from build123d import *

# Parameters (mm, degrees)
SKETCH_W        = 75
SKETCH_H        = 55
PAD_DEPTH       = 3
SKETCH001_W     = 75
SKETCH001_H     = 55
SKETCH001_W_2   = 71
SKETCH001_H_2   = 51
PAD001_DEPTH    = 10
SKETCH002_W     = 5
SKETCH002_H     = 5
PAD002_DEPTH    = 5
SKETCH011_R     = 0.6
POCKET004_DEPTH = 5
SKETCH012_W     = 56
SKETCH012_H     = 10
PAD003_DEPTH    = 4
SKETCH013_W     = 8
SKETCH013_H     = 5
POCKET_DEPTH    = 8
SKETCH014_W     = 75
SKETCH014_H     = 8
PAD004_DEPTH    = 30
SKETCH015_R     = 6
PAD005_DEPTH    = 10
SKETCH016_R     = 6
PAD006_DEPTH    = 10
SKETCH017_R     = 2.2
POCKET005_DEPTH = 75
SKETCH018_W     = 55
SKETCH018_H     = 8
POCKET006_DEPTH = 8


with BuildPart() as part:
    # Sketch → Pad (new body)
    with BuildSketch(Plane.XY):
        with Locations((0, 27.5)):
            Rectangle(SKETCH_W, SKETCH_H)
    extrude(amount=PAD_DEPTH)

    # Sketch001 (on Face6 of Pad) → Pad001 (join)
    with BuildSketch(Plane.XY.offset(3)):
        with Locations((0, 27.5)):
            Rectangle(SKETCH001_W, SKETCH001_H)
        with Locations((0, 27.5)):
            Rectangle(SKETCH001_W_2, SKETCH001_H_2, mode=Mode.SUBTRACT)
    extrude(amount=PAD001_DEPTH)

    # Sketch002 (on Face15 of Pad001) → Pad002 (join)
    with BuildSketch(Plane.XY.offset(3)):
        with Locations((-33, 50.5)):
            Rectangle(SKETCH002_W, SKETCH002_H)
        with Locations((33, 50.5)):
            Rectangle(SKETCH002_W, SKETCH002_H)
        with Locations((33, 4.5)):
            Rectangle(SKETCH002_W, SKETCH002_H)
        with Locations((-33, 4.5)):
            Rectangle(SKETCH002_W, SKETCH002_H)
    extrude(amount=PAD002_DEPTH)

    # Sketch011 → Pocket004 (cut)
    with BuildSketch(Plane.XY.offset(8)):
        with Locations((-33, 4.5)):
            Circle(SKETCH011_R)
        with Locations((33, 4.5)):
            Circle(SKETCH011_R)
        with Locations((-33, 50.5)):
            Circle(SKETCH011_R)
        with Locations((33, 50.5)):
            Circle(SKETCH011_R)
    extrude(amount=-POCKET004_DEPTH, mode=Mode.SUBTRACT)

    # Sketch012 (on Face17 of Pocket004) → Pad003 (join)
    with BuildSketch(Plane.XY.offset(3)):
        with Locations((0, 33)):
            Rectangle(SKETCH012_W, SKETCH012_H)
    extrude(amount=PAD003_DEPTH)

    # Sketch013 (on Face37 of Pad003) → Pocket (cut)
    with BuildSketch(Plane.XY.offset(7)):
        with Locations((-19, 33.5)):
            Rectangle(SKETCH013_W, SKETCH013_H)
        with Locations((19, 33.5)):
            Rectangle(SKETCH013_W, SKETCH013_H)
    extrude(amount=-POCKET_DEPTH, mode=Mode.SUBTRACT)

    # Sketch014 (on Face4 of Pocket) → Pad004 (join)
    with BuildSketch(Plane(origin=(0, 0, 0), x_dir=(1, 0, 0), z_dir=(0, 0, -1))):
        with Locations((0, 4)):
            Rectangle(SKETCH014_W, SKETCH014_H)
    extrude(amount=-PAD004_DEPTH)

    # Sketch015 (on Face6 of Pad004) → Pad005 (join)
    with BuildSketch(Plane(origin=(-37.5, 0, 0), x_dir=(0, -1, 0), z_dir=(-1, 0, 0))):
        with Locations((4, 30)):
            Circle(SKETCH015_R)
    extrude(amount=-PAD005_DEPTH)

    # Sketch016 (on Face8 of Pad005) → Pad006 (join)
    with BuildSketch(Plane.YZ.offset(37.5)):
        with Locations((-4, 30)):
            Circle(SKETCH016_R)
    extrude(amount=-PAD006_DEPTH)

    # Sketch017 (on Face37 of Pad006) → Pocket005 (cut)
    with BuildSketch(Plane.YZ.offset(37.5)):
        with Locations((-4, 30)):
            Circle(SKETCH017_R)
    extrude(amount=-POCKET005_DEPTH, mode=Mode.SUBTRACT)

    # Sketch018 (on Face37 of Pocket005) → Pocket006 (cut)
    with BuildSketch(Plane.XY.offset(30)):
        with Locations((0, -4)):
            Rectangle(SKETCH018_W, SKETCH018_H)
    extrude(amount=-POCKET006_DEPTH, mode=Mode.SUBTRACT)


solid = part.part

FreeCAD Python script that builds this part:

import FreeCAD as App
import Part
import Sketcher

doc = App.newDocument("Part")
params = doc.addObject("Spreadsheet::Sheet", "Params")
for row, (alias, value) in enumerate([
    ("sketch1_width", "75 mm"),
    ("sketch1_height", "55 mm"),
    ("pad1_length", "3 mm"),
    ("sketch2_width", "75 mm"),
    ("sketch2_width2", "71 mm"),
    ("sketch2_height", "55 mm"),
    ("sketch2_height2", "51 mm"),
    ("pad2_length", "10 mm"),
    ("sketch3_width", "5 mm"),
    ("pad3_length", "5 mm"),
    ("sketch4_diameter", "1.2 mm"),
    ("pocket1_length", "5 mm"),
    ("sketch5_width", "56 mm"),
    ("sketch5_height", "10 mm"),
    ("pad4_length", "4 mm"),
    ("sketch6_width", "8 mm"),
    ("sketch6_height", "5 mm"),
    ("pocket2_length", "8 mm"),
    ("sketch7_width", "75 mm"),
    ("sketch7_height", "8 mm"),
    ("pad5_length", "30 mm"),
    ("sketch8_diameter", "12 mm"),
    ("pad6_length", "10 mm"),
    ("sketch9_diameter", "12 mm"),
    ("pad7_length", "10 mm"),
    ("sketch10_diameter", "4.4 mm"),
    ("pocket3_length", "75 mm"),
    ("sketch11_width", "55 mm"),
    ("sketch11_height", "8 mm"),
    ("pocket4_length", "8 mm"),
], start=1):
    params.set(f"A{row}", alias)
    params.set(f"B{row}", "=" + value)
    params.setAlias(f"B{row}", alias)

body = doc.addObject("PartDesign::Body", "Body")

sketch1 = body.newObject("Sketcher::SketchObject", "Sketch")
sketch1.AttachmentSupport = (doc.getObject("XY_Plane"), [""])
sketch1.MapMode = "FlatFace"
sketch1.addGeometry([
    Part.LineSegment(App.Vector(-38, 55, 0), App.Vector(-38, 0, 0)),
    Part.LineSegment(App.Vector(-38, 0, 0), App.Vector(38, 0, 0)),
    Part.LineSegment(App.Vector(38, 0, 0), App.Vector(38, 55, 0)),
    Part.LineSegment(App.Vector(38, 55, 0), App.Vector(-38, 55, 0)),
], False)
sketch1.addConstraint([
    Sketcher.Constraint("Coincident", 0, 2, 1, 1),
    Sketcher.Constraint("Coincident", 1, 2, 2, 1),
    Sketcher.Constraint("Coincident", 2, 2, 3, 1),
    Sketcher.Constraint("Coincident", 3, 2, 0, 1),
    Sketcher.Constraint("Vertical", 0),
    Sketcher.Constraint("Horizontal", 1),
    Sketcher.Constraint("Vertical", 2),
    Sketcher.Constraint("Horizontal", 3),
    Sketcher.Constraint("Symmetric", 0, 2, 1, 2, -1, 1),
    Sketcher.Constraint("DistanceX", 1, 1, 1, 2, 75.0),
    Sketcher.Constraint("DistanceY", 0, 2, 0, 1, 55.0),
])
sketch1.setExpression("Constraints[9]", "Params.sketch1_width")
sketch1.setExpression("Constraints[10]", "Params.sketch1_height")
pad1 = body.newObject("PartDesign::Pad", "Pad")
pad1.Profile = sketch1
pad1.setExpression("Length", "Params.pad1_length")

sketch2 = body.newObject("Sketcher::SketchObject", "Sketch001")
sketch2.AttachmentSupport = (doc.getObject("XY_Plane"), [""])
sketch2.MapMode = "FlatFace"
sketch2.AttachmentOffset = App.Placement(App.Vector(0, 0, 3), App.Rotation())
sketch2.addGeometry([
    Part.LineSegment(App.Vector(-38, 55, 0), App.Vector(-38, 0, 0)),
    Part.LineSegment(App.Vector(-38, 0, 0), App.Vector(38, 0, 0)),
    Part.LineSegment(App.Vector(38, 0, 0), App.Vector(38, 55, 0)),
    Part.LineSegment(App.Vector(38, 55, 0), App.Vector(-38, 55, 0)),
    Part.LineSegment(App.Vector(36, 2, 0), App.Vector(-36, 2, 0)),
    Part.LineSegment(App.Vector(-36, 2, 0), App.Vector(-36, 53, 0)),
    Part.LineSegment(App.Vector(-36, 53, 0), App.Vector(36, 53, 0)),
    Part.LineSegment(App.Vector(36, 53, 0), App.Vector(36, 2, 0)),
], False)
sketch2.addConstraint([
    Sketcher.Constraint("Coincident", 0, 2, 1, 1),
    Sketcher.Constraint("Coincident", 1, 2, 2, 1),
    Sketcher.Constraint("Coincident", 2, 2, 3, 1),
    Sketcher.Constraint("Coincident", 3, 2, 0, 1),
    Sketcher.Constraint("Coincident", 4, 2, 5, 1),
    Sketcher.Constraint("Coincident", 5, 2, 6, 1),
    Sketcher.Constraint("Coincident", 6, 2, 7, 1),
    Sketcher.Constraint("Coincident", 7, 2, 4, 1),
    Sketcher.Constraint("Vertical", 0),
    Sketcher.Constraint("Horizontal", 1),
    Sketcher.Constraint("Vertical", 2),
    Sketcher.Constraint("Horizontal", 3),
    Sketcher.Constraint("Horizontal", 4),
    Sketcher.Constraint("Vertical", 5),
    Sketcher.Constraint("Horizontal", 6),
    Sketcher.Constraint("Vertical", 7),
    Sketcher.Constraint("Symmetric", 0, 2, 1, 2, -1, 1),
    Sketcher.Constraint("DistanceX", 1, 1, 1, 2, 75.0),
    Sketcher.Constraint("DistanceX", 4, 2, 4, 1, 71.0),
    Sketcher.Constraint("DistanceY", 0, 2, 0, 1, 55.0),
    Sketcher.Constraint("DistanceY", 5, 1, 5, 2, 51.0),
    Sketcher.Constraint("DistanceY", -1, 1, 4, 2, 2.0),
    Sketcher.Constraint("DistanceX", 0, 2, 4, 2, 2.0),
])
sketch2.setExpression("Constraints[17]", "Params.sketch2_width")
sketch2.setExpression("Constraints[18]", "Params.sketch2_width2")
sketch2.setExpression("Constraints[19]", "Params.sketch2_height")
sketch2.setExpression("Constraints[20]", "Params.sketch2_height2")
pad2 = body.newObject("PartDesign::Pad", "Pad001")
pad2.Profile = sketch2
pad2.setExpression("Length", "Params.pad2_length")

sketch3 = body.newObject("Sketcher::SketchObject", "Sketch002")
sketch3.AttachmentSupport = (doc.getObject("XY_Plane"), [""])
sketch3.MapMode = "FlatFace"
sketch3.AttachmentOffset = App.Placement(App.Vector(0, 0, 3), App.Rotation())
sketch3.addGeometry([
    Part.LineSegment(App.Vector(-36, 53, 0), App.Vector(-36, 48, 0)),
    Part.LineSegment(App.Vector(-36, 48, 0), App.Vector(-30, 48, 0)),
    Part.LineSegment(App.Vector(-30, 48, 0), App.Vector(-30, 53, 0)),
    Part.LineSegment(App.Vector(-30, 53, 0), App.Vector(-36, 53, 0)),
    Part.LineSegment(App.Vector(30, 53, 0), App.Vector(30, 48, 0)),
    Part.LineSegment(App.Vector(30, 48, 0), App.Vector(36, 48, 0)),
    Part.LineSegment(App.Vector(36, 48, 0), App.Vector(36, 53, 0)),
    Part.LineSegment(App.Vector(36, 53, 0), App.Vector(30, 53, 0)),
    Part.LineSegment(App.Vector(30, 7, 0), App.Vector(30, 2, 0)),
    Part.LineSegment(App.Vector(30, 2, 0), App.Vector(36, 2, 0)),
    Part.LineSegment(App.Vector(36, 2, 0), App.Vector(36, 7, 0)),
    Part.LineSegment(App.Vector(36, 7, 0), App.Vector(30, 7, 0)),
    Part.LineSegment(App.Vector(-36, 7, 0), App.Vector(-36, 2, 0)),
    Part.LineSegment(App.Vector(-36, 2, 0), App.Vector(-30, 2, 0)),
    Part.LineSegment(App.Vector(-30, 2, 0), App.Vector(-30, 7, 0)),
    Part.LineSegment(App.Vector(-30, 7, 0), App.Vector(-36, 7, 0)),
], False)
sketch3.addConstraint([
    Sketcher.Constraint("Coincident", 0, 2, 1, 1),
    Sketcher.Constraint("Coincident", 1, 2, 2, 1),
    Sketcher.Constraint("Coincident", 2, 2, 3, 1),
    Sketcher.Constraint("Coincident", 3, 2, 0, 1),
    Sketcher.Constraint("Coincident", 4, 2, 5, 1),
    Sketcher.Constraint("Coincident", 5, 2, 6, 1),
    Sketcher.Constraint("Coincident", 6, 2, 7, 1),
    Sketcher.Constraint("Coincident", 7, 2, 4, 1),
    Sketcher.Constraint("Coincident", 8, 2, 9, 1),
    Sketcher.Constraint("Coincident", 9, 2, 10, 1),
    Sketcher.Constraint("Coincident", 10, 2, 11, 1),
    Sketcher.Constraint("Coincident", 11, 2, 8, 1),
    Sketcher.Constraint("Coincident", 12, 2, 13, 1),
    Sketcher.Constraint("Coincident", 13, 2, 14, 1),
    Sketcher.Constraint("Coincident", 14, 2, 15, 1),
    Sketcher.Constraint("Coincident", 15, 2, 12, 1),
    Sketcher.Constraint("Vertical", 0),
    Sketcher.Constraint("Horizontal", 1),
    Sketcher.Constraint("Vertical", 2),
    Sketcher.Constraint("Horizontal", 3),
    Sketcher.Constraint("Vertical", 4),
    Sketcher.Constraint("Horizontal", 5),
    Sketcher.Constraint("Vertical", 6),
    Sketcher.Constraint("Horizontal", 7),
    Sketcher.Constraint("Vertical", 8),
    Sketcher.Constraint("Horizontal", 9),
    Sketcher.Constraint("Vertical", 10),
    Sketcher.Constraint("Horizontal", 11),
    Sketcher.Constraint("Vertical", 12),
    Sketcher.Constraint("Horizontal", 13),
    Sketcher.Constraint("Vertical", 14),
    Sketcher.Constraint("Horizontal", 15),
    Sketcher.Constraint("Symmetric", 1, 2, 4, 2, -2),
    Sketcher.Constraint("Symmetric", 3, 2, 6, 2, -2),
    Sketcher.Constraint("Symmetric", 9, 2, 12, 2, -2),
    Sketcher.Constraint("Symmetric", 11, 2, 14, 2, -2),
    Sketcher.Constraint("Vertical", 7, 2, 8, 2),
    Sketcher.Constraint("Vertical", 6, 2, 9, 2),
    Sketcher.Constraint("Equal", 15, 0),
    Sketcher.Constraint("Equal", 6, 8),
    Sketcher.Constraint("DistanceX", 1, 1, 1, 2, 5.0),
    Sketcher.Constraint("DistanceY", -1, 1, 0, 2, 48.0),
    Sketcher.Constraint("DistanceY", -1, 1, 8, 2, 2.0),
    Sketcher.Constraint("DistanceX", 1, 2, 4, 2, 61.0),
])
sketch3.setExpression("Constraints[40]", "Params.sketch3_width")
pad3 = body.newObject("PartDesign::Pad", "Pad002")
pad3.Profile = sketch3
pad3.setExpression("Length", "Params.pad3_length")

sketch4 = body.newObject("Sketcher::SketchObject", "Sketch003")
sketch4.AttachmentSupport = (doc.getObject("XY_Plane"), [""])
sketch4.MapMode = "FlatFace"
sketch4.AttachmentOffset = App.Placement(App.Vector(0, 0, 8), App.Rotation())
sketch4.addGeometry([
    Part.Circle(App.Vector(-33, 4.5, 0), App.Vector(0, 0, 1), 0.6),
    Part.Circle(App.Vector(33, 4.5, 0), App.Vector(0, 0, 1), 0.6),
    Part.Circle(App.Vector(-33, 50.5, 0), App.Vector(0, 0, 1), 0.6),
    Part.Circle(App.Vector(33, 50.5, 0), App.Vector(0, 0, 1), 0.6),
], False)
sketch4.addConstraint([
    Sketcher.Constraint("Equal", 0, 1),
    Sketcher.Constraint("Equal", 1, 2),
    Sketcher.Constraint("Equal", 2, 3),
    Sketcher.Constraint("Symmetric", 0, 3, 1, 3, -2),
    Sketcher.Constraint("Symmetric", 2, 3, 3, 3, -2),
    Sketcher.Constraint("Vertical", 0, 3, 2, 3),
    Sketcher.Constraint("Diameter", 0, 1.2),
    Sketcher.Constraint("DistanceX", 0, 3, -1, 1, 33.0),
    Sketcher.Constraint("DistanceY", 0, 3, 2, 3, 46.0),
    Sketcher.Constraint("DistanceY", -1, 1, 0, 3, 4.5),
])
sketch4.setExpression("Constraints[6]", "Params.sketch4_diameter")
pocket1 = body.newObject("PartDesign::Pocket", "Pocket")
pocket1.Profile = sketch4
pocket1.setExpression("Length", "Params.pocket1_length")

sketch5 = body.newObject("Sketcher::SketchObject", "Sketch004")
sketch5.AttachmentSupport = (doc.getObject("XY_Plane"), [""])
sketch5.MapMode = "FlatFace"
sketch5.AttachmentOffset = App.Placement(App.Vector(0, 0, 3), App.Rotation())
sketch5.addGeometry([
    Part.LineSegment(App.Vector(-28, 38, 0), App.Vector(-28, 28, 0)),
    Part.LineSegment(App.Vector(-28, 28, 0), App.Vector(28, 28, 0)),
    Part.LineSegment(App.Vector(28, 28, 0), App.Vector(28, 38, 0)),
    Part.LineSegment(App.Vector(28, 38, 0), App.Vector(-28, 38, 0)),
], False)
sketch5.addConstraint([
    Sketcher.Constraint("Coincident", 0, 2, 1, 1),
    Sketcher.Constraint("Coincident", 1, 2, 2, 1),
    Sketcher.Constraint("Coincident", 2, 2, 3, 1),
    Sketcher.Constraint("Coincident", 3, 2, 0, 1),
    Sketcher.Constraint("Vertical", 0),
    Sketcher.Constraint("Horizontal", 1),
    Sketcher.Constraint("Vertical", 2),
    Sketcher.Constraint("Horizontal", 3),
    Sketcher.Constraint("DistanceX", 1, 1, 1, 2, 56.0),
    Sketcher.Constraint("DistanceY", 0, 2, 0, 1, 10.0),
    Sketcher.Constraint("DistanceX", 0, 2, -1, 1, 28.0),
    Sketcher.Constraint("DistanceY", -1, 1, 0, 2, 28.0),
])
sketch5.setExpression("Constraints[8]", "Params.sketch5_width")
sketch5.setExpression("Constraints[9]", "Params.sketch5_height")
pad4 = body.newObject("PartDesign::Pad", "Pad003")
pad4.Profile = sketch5
pad4.setExpression("Length", "Params.pad4_length")

sketch6 = body.newObject("Sketcher::SketchObject", "Sketch005")
sketch6.AttachmentSupport = (doc.getObject("XY_Plane"), [""])
sketch6.MapMode = "FlatFace"
sketch6.AttachmentOffset = App.Placement(App.Vector(0, 0, 7), App.Rotation())
sketch6.addGeometry([
    Part.LineSegment(App.Vector(-23, 36, 0), App.Vector(-23, 31, 0)),
    Part.LineSegment(App.Vector(-23, 31, 0), App.Vector(-15, 31, 0)),
    Part.LineSegment(App.Vector(-15, 31, 0), App.Vector(-15, 36, 0)),
    Part.LineSegment(App.Vector(-15, 36, 0), App.Vector(-23, 36, 0)),
    Part.LineSegment(App.Vector(15, 36, 0), App.Vector(15, 31, 0)),
    Part.LineSegment(App.Vector(15, 31, 0), App.Vector(23, 31, 0)),
    Part.LineSegment(App.Vector(23, 31, 0), App.Vector(23, 36, 0)),
    Part.LineSegment(App.Vector(23, 36, 0), App.Vector(15, 36, 0)),
], False)
sketch6.addConstraint([
    Sketcher.Constraint("Coincident", 0, 2, 1, 1),
    Sketcher.Constraint("Coincident", 1, 2, 2, 1),
    Sketcher.Constraint("Coincident", 2, 2, 3, 1),
    Sketcher.Constraint("Coincident", 3, 2, 0, 1),
    Sketcher.Constraint("Coincident", 4, 2, 5, 1),
    Sketcher.Constraint("Coincident", 5, 2, 6, 1),
    Sketcher.Constraint("Coincident", 6, 2, 7, 1),
    Sketcher.Constraint("Coincident", 7, 2, 4, 1),
    Sketcher.Constraint("Vertical", 0),
    Sketcher.Constraint("Horizontal", 1),
    Sketcher.Constraint("Vertical", 2),
    Sketcher.Constraint("Horizontal", 3),
    Sketcher.Constraint("Vertical", 4),
    Sketcher.Constraint("Horizontal", 5),
    Sketcher.Constraint("Vertical", 6),
    Sketcher.Constraint("Horizontal", 7),
    Sketcher.Constraint("Symmetric", 1, 2, 4, 2, -2),
    Sketcher.Constraint("Symmetric", 3, 2, 6, 2, -2),
    Sketcher.Constraint("DistanceX", 1, 1, 1, 2, 8.0),
    Sketcher.Constraint("DistanceY", 0, 2, 0, 1, 5.0),
    Sketcher.Constraint("DistanceX", 0, 2, -1, 1, 23.0),
    Sketcher.Constraint("DistanceY", -1, 1, 0, 2, 31.0),
])
sketch6.setExpression("Constraints[18]", "Params.sketch6_width")
sketch6.setExpression("Constraints[19]", "Params.sketch6_height")
pocket2 = body.newObject("PartDesign::Pocket", "Pocket001")
pocket2.Profile = sketch6
pocket2.setExpression("Length", "Params.pocket2_length")

sketch7 = body.newObject("Sketcher::SketchObject", "Sketch006")
sketch7.AttachmentSupport = (doc.getObject("XY_Plane"), [""])
sketch7.MapMode = "FlatFace"
sketch7.addGeometry([
    Part.LineSegment(App.Vector(-38, -8, 0), App.Vector(-38, 0, 0)),
    Part.LineSegment(App.Vector(-38, 0, 0), App.Vector(38, 0, 0)),
    Part.LineSegment(App.Vector(38, 0, 0), App.Vector(38, -8, 0)),
    Part.LineSegment(App.Vector(38, -8, 0), App.Vector(-38, -8, 0)),
], False)
sketch7.addConstraint([
    Sketcher.Constraint("Coincident", 0, 2, 1, 1),
    Sketcher.Constraint("Coincident", 1, 2, 2, 1),
    Sketcher.Constraint("Coincident", 2, 2, 3, 1),
    Sketcher.Constraint("Coincident", 3, 2, 0, 1),
    Sketcher.Constraint("Vertical", 0),
    Sketcher.Constraint("Horizontal", 1),
    Sketcher.Constraint("Vertical", 2),
    Sketcher.Constraint("Horizontal", 3),
    Sketcher.Constraint("Symmetric", 0, 2, 1, 2, -1, 1),
    Sketcher.Constraint("DistanceX", 1, 1, 1, 2, 75.0),
    Sketcher.Constraint("DistanceY", 0, 1, 0, 2, 8.0),
])
sketch7.setExpression("Constraints[9]", "Params.sketch7_width")
sketch7.setExpression("Constraints[10]", "Params.sketch7_height")
pad5 = body.newObject("PartDesign::Pad", "Pad004")
pad5.Profile = sketch7
pad5.setExpression("Length", "Params.pad5_length")

sketch8 = body.newObject("Sketcher::SketchObject", "Sketch007")
sketch8.AttachmentSupport = (doc.getObject("YZ_Plane"), [""])
sketch8.MapMode = "FlatFace"
sketch8.AttachmentOffset = App.Placement(App.Vector(0, 0, -37.5), App.Rotation())
sketch8.addGeometry(Part.Circle(App.Vector(-4, 30, 0), App.Vector(0, 0, 1), 6), False)
sketch8.addConstraint([
    Sketcher.Constraint("Diameter", 0, 12.0),
    Sketcher.Constraint("DistanceX", 0, 3, -1, 1, 4.0),
    Sketcher.Constraint("DistanceY", -1, 1, 0, 3, 30.0),
])
sketch8.setExpression("Constraints[0]", "Params.sketch8_diameter")
pad6 = body.newObject("PartDesign::Pad", "Pad005")
pad6.Profile = sketch8
pad6.setExpression("Length", "Params.pad6_length")

sketch9 = body.newObject("Sketcher::SketchObject", "Sketch008")
sketch9.AttachmentSupport = (doc.getObject("YZ_Plane"), [""])
sketch9.MapMode = "FlatFace"
sketch9.AttachmentOffset = App.Placement(App.Vector(0, 0, 37.5), App.Rotation())
sketch9.addGeometry(Part.Circle(App.Vector(-4, 30, 0), App.Vector(0, 0, 1), 6), False)
sketch9.addConstraint([
    Sketcher.Constraint("Diameter", 0, 12.0),
    Sketcher.Constraint("DistanceX", 0, 3, -1, 1, 4.0),
    Sketcher.Constraint("DistanceY", -1, 1, 0, 3, 30.0),
])
sketch9.setExpression("Constraints[0]", "Params.sketch9_diameter")
pad7 = body.newObject("PartDesign::Pad", "Pad006")
pad7.Profile = sketch9
pad7.setExpression("Length", "Params.pad7_length")
pad7.Reversed = True

sketch10 = body.newObject("Sketcher::SketchObject", "Sketch009")
sketch10.AttachmentSupport = (doc.getObject("YZ_Plane"), [""])
sketch10.MapMode = "FlatFace"
sketch10.AttachmentOffset = App.Placement(App.Vector(0, 0, 37.5), App.Rotation())
sketch10.addGeometry(Part.Circle(App.Vector(-4, 30, 0), App.Vector(0, 0, 1), 2.2), False)
sketch10.addConstraint([
    Sketcher.Constraint("Diameter", 0, 4.4),
    Sketcher.Constraint("DistanceX", 0, 3, -1, 1, 4.0),
    Sketcher.Constraint("DistanceY", -1, 1, 0, 3, 30.0),
])
sketch10.setExpression("Constraints[0]", "Params.sketch10_diameter")
pocket3 = body.newObject("PartDesign::Pocket", "Pocket002")
pocket3.Profile = sketch10
pocket3.setExpression("Length", "Params.pocket3_length")

sketch11 = body.newObject("Sketcher::SketchObject", "Sketch010")
sketch11.AttachmentSupport = (doc.getObject("XY_Plane"), [""])
sketch11.MapMode = "FlatFace"
sketch11.AttachmentOffset = App.Placement(App.Vector(0, 0, 30), App.Rotation())
sketch11.addGeometry([
    Part.LineSegment(App.Vector(-28, 0, 0), App.Vector(-28, -8, 0)),
    Part.LineSegment(App.Vector(-28, -8, 0), App.Vector(28, -8, 0)),
    Part.LineSegment(App.Vector(28, -8, 0), App.Vector(28, 0, 0)),
    Part.LineSegment(App.Vector(28, 0, 0), App.Vector(-28, 0, 0)),
], False)
sketch11.addConstraint([
    Sketcher.Constraint("Coincident", 0, 2, 1, 1),
    Sketcher.Constraint("Coincident", 1, 2, 2, 1),
    Sketcher.Constraint("Coincident", 2, 2, 3, 1),
    Sketcher.Constraint("Coincident", 3, 2, 0, 1),
    Sketcher.Constraint("Vertical", 0),
    Sketcher.Constraint("Horizontal", 1),
    Sketcher.Constraint("Vertical", 2),
    Sketcher.Constraint("Horizontal", 3),
    Sketcher.Constraint("Symmetric", 2, 2, 3, 2, -1, 1),
    Sketcher.Constraint("DistanceX", 1, 1, 1, 2, 55.0),
    Sketcher.Constraint("DistanceY", 0, 2, 0, 1, 8.0),
])
sketch11.setExpression("Constraints[9]", "Params.sketch11_width")
sketch11.setExpression("Constraints[10]", "Params.sketch11_height")
pocket4 = body.newObject("PartDesign::Pocket", "Pocket003")
pocket4.Profile = sketch11
pocket4.setExpression("Length", "Params.pocket4_length")

doc.recompute()
